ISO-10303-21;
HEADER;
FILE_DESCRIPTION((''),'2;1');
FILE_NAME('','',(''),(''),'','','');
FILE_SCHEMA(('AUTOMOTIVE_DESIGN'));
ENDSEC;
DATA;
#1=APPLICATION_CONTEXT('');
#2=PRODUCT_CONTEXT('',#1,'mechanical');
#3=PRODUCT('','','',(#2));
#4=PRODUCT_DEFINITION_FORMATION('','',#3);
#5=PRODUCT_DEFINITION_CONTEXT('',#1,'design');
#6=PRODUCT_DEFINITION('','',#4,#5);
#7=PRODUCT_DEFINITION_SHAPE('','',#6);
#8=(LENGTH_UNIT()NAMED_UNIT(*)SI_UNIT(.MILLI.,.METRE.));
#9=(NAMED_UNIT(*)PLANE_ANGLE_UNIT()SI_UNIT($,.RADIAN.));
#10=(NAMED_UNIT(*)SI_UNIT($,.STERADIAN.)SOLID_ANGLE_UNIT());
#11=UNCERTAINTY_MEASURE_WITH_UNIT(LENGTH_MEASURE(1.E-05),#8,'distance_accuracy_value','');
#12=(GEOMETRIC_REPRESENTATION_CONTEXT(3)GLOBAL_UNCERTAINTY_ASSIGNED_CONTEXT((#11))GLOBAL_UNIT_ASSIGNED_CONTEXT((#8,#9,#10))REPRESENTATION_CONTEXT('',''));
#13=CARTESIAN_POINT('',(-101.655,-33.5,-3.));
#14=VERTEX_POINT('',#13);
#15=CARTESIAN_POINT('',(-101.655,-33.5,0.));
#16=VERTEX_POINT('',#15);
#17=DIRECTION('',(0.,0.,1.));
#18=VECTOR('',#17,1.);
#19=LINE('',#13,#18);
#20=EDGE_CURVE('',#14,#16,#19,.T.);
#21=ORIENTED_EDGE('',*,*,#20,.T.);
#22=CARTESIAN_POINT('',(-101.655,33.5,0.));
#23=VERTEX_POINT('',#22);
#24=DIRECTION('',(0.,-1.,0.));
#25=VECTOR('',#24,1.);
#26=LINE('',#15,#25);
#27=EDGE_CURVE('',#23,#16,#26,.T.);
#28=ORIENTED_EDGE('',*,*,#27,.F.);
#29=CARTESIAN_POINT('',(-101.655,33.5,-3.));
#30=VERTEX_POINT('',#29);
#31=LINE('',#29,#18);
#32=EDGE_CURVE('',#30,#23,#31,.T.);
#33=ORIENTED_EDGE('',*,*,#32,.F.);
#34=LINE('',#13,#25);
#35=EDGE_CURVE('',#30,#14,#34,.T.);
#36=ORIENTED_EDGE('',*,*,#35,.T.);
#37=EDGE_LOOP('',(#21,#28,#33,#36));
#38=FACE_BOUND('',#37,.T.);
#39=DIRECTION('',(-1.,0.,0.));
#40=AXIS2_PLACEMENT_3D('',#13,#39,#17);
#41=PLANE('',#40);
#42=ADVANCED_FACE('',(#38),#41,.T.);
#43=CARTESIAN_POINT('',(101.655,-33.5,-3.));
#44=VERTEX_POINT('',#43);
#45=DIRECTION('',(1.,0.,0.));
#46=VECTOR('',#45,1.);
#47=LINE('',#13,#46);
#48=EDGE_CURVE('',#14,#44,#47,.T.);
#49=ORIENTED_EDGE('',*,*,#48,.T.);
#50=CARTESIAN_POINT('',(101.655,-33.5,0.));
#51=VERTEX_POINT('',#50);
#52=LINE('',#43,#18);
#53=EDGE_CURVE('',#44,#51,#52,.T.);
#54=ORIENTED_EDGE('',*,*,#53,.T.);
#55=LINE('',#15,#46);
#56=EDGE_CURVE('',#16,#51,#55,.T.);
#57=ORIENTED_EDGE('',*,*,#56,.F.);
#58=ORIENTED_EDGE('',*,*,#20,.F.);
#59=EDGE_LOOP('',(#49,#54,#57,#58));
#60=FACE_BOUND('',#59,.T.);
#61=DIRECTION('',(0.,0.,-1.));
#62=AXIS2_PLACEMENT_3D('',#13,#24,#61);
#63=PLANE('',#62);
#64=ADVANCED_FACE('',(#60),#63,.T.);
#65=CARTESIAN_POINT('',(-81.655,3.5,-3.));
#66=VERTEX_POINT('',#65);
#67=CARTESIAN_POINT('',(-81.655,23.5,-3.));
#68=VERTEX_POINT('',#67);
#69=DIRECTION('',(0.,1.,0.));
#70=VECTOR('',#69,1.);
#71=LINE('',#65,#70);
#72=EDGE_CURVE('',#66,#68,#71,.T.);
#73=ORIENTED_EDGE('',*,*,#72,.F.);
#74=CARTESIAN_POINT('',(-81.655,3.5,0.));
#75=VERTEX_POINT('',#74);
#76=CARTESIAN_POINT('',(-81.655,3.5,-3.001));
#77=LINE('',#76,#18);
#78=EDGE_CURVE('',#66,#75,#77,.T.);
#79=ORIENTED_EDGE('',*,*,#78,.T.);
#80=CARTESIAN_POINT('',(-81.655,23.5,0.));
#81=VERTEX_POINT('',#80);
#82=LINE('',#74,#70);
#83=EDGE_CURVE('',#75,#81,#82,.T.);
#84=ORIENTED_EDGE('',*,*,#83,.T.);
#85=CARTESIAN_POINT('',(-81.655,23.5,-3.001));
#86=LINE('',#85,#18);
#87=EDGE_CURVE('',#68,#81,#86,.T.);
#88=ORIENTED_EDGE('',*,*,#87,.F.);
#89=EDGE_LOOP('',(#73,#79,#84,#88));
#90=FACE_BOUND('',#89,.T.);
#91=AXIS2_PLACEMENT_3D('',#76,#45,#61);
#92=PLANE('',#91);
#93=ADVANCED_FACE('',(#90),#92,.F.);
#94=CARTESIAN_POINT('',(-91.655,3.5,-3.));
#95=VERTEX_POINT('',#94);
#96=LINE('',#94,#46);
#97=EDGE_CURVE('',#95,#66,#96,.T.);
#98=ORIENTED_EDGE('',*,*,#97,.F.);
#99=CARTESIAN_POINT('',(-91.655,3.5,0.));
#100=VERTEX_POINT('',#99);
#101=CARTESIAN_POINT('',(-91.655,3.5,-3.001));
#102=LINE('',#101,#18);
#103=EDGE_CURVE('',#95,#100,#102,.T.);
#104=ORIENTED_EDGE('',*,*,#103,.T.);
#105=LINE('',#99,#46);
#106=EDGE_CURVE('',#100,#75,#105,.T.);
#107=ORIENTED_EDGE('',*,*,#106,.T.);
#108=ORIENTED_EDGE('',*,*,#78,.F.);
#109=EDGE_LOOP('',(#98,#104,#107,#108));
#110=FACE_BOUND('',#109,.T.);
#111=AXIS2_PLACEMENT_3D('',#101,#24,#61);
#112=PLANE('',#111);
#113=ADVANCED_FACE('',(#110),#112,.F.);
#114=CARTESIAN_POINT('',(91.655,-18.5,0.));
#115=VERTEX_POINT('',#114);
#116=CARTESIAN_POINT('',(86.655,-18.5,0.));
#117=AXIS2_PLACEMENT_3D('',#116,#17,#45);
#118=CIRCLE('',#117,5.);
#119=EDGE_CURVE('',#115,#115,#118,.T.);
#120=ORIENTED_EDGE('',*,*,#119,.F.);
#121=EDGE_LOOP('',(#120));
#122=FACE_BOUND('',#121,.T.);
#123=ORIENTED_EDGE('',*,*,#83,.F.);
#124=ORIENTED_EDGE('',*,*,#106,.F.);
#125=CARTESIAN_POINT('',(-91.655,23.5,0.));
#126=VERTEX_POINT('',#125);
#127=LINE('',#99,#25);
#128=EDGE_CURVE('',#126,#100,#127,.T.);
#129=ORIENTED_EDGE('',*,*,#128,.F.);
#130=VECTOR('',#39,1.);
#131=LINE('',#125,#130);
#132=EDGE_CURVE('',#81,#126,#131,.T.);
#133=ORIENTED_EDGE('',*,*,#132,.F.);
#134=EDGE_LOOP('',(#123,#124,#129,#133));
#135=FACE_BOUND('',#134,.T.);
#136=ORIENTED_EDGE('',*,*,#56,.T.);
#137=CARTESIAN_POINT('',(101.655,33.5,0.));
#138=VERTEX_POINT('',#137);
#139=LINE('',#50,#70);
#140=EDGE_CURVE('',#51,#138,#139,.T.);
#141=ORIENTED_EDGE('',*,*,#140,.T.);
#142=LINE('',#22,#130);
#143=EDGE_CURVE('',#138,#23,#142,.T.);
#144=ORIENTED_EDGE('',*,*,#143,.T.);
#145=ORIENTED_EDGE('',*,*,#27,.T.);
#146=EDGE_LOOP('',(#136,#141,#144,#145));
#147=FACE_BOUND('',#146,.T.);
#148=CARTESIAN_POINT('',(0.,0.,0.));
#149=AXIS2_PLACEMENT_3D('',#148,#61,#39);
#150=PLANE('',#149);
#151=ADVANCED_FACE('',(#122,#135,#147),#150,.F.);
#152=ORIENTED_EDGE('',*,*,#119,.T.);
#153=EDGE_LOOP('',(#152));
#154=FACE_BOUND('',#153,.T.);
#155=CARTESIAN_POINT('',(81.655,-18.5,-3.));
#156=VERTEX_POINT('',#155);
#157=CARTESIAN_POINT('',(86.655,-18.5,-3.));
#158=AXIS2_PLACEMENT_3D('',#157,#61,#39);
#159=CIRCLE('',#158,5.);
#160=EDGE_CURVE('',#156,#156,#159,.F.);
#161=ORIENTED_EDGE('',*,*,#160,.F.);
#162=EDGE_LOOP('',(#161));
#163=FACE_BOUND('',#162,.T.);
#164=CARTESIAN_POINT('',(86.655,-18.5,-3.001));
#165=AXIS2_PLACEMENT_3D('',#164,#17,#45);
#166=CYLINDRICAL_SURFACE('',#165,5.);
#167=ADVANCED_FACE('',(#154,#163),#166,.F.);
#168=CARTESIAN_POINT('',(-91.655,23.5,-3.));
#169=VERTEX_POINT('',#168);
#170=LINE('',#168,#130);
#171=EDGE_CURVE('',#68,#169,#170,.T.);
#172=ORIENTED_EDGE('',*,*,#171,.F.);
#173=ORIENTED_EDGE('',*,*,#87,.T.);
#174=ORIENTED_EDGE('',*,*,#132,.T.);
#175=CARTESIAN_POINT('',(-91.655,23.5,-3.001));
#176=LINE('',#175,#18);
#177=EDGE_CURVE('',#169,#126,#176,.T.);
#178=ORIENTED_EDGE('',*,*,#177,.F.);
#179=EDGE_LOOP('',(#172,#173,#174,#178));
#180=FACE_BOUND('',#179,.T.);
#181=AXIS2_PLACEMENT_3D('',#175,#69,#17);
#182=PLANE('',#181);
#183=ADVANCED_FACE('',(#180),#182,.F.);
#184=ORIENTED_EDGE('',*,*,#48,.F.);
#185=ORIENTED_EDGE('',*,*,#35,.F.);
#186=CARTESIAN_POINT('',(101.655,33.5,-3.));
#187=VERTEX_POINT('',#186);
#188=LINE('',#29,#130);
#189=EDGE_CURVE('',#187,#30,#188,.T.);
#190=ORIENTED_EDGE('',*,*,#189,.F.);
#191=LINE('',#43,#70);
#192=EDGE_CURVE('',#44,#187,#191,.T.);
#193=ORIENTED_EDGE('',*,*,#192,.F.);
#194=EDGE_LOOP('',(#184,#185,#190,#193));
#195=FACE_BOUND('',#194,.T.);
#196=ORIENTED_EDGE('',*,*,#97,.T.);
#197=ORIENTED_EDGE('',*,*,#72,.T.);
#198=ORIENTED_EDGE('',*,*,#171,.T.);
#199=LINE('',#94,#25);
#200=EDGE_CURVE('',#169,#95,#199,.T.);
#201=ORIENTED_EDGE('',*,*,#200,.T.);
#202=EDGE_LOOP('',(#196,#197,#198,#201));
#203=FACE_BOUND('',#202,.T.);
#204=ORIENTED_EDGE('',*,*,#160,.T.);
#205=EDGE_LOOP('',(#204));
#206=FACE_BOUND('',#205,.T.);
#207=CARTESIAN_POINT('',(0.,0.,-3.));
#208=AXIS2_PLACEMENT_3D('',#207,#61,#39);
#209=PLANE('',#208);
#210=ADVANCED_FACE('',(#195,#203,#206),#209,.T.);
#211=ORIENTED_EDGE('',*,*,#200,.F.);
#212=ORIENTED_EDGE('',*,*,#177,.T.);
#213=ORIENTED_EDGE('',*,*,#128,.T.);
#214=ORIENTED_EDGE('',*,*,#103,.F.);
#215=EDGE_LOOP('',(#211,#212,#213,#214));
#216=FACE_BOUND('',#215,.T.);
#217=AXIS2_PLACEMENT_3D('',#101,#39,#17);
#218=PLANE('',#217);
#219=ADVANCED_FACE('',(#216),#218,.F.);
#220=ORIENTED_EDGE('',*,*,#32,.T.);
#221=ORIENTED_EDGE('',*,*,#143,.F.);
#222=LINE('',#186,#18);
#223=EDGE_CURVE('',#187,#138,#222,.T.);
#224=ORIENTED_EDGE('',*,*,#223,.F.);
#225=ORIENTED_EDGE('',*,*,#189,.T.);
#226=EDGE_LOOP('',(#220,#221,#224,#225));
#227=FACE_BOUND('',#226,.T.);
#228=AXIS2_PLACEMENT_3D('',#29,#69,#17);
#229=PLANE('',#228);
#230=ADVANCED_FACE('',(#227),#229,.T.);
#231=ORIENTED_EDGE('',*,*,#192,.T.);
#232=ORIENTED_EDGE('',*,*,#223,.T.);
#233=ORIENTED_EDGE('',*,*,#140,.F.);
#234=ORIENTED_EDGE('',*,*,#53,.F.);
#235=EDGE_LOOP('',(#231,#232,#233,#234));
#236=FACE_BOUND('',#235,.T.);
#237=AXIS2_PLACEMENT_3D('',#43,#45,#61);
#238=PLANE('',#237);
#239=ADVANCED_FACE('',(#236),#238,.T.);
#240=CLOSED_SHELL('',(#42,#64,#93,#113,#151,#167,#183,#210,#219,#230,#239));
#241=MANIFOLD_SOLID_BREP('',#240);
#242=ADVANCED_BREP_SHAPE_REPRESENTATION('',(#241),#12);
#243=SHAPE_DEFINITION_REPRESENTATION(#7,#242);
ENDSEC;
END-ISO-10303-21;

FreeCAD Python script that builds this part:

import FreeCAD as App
import Part
import Sketcher
Q = App.Units.Quantity

doc = App.newDocument("Part")
body = doc.addObject("PartDesign::Body", "Body")

# Sketch on XY plane
sketch1 = body.newObject("Sketcher::SketchObject", "Sketch")
sketch1.AttachmentSupport = (doc.getObject("XY_Plane"), [""])
sketch1.MapMode = "FlatFace"
sketch1.addGeometry([
    Part.LineSegment(App.Vector(-102, 34, 0), App.Vector(-102, -34, 0)),
    Part.LineSegment(App.Vector(-102, -34, 0), App.Vector(102, -34, 0)),
    Part.LineSegment(App.Vector(102, -34, 0), App.Vector(102, 34, 0)),
    Part.LineSegment(App.Vector(102, 34, 0), App.Vector(-102, 34, 0)),
], False)
sketch1.addConstraint([
    Sketcher.Constraint("Coincident", 0, 2, 1, 1),
    Sketcher.Constraint("Coincident", 1, 2, 2, 1),
    Sketcher.Constraint("Coincident", 2, 2, 3, 1),
    Sketcher.Constraint("Coincident", 3, 2, 0, 1),
    Sketcher.Constraint("Vertical", 0),
    Sketcher.Constraint("Horizontal", 1),
    Sketcher.Constraint("Vertical", 2),
    Sketcher.Constraint("Horizontal", 3),
    Sketcher.Constraint("Symmetric", 0, 2, 2, 2, -1, 1),
    Sketcher.Constraint("DistanceY", 0, 2, 0, 1, Q("67 mm")),
    Sketcher.Constraint("DistanceX", 1, 1, 1, 2, Q("203.31 mm")),
])
pad1 = body.newObject("PartDesign::Pad", "Pad")
pad1.Profile = sketch1
pad1.Length = 3
pad1.Reversed = True

# Sketch on XY plane
sketch2 = body.newObject("Sketcher::SketchObject", "Sketch001")
sketch2.AttachmentSupport = (doc.getObject("XY_Plane"), [""])
sketch2.MapMode = "FlatFace"
sketch2.addGeometry([
    Part.LineSegment(App.Vector(-92, 24, 0), App.Vector(-92, 4, 0)),
    Part.LineSegment(App.Vector(-92, 4, 0), App.Vector(-82, 4, 0)),
    Part.LineSegment(App.Vector(-82, 4, 0), App.Vector(-82, 24, 0)),
    Part.LineSegment(App.Vector(-82, 24, 0), App.Vector(-92, 24, 0)),
], False)
sketch2.addConstraint([
    Sketcher.Constraint("Coincident", 0, 2, 1, 1),
    Sketcher.Constraint("Coincident", 1, 2, 2, 1),
    Sketcher.Constraint("Coincident", 2, 2, 3, 1),
    Sketcher.Constraint("Coincident", 3, 2, 0, 1),
    Sketcher.Constraint("Vertical", 0),
    Sketcher.Constraint("Horizontal", 1),
    Sketcher.Constraint("Vertical", 2),
    Sketcher.Constraint("Horizontal", 3),
    Sketcher.Constraint("DistanceX", 1, 1, 1, 2, Q("10 mm")),
    Sketcher.Constraint("DistanceY", 0, 2, 0, 1, Q("20 mm")),
    Sketcher.Constraint("DistanceY", -1, 1, 0, 2, Q("3.5 mm")),
    Sketcher.Constraint("DistanceX", 0, 2, -1, 1, Q("91.655 mm")),
])
pocket1 = body.newObject("PartDesign::Pocket", "Pocket")
pocket1.Profile = sketch2
pocket1.Type = "UpToFirst"

# Sketch on XY plane
sketch3 = body.newObject("Sketcher::SketchObject", "Sketch002")
sketch3.AttachmentSupport = (doc.getObject("XY_Plane"), [""])
sketch3.MapMode = "FlatFace"
sketch3.addGeometry(Part.Circle(App.Vector(87, -18, 0), App.Vector(0, 0, 1), 5), False)
sketch3.addConstraint([
    Sketcher.Constraint("Diameter", 0, Q("10 mm")),
    Sketcher.Constraint("DistanceY", 0, 3, -1, 1, Q("18.5 mm")),
    Sketcher.Constraint("DistanceX", -1, 1, 0, 3, Q("86.655 mm")),
])
pocket2 = body.newObject("PartDesign::Pocket", "Pocket001")
pocket2.Profile = sketch3
pocket2.Type = "UpToFirst"

doc.recompute()
